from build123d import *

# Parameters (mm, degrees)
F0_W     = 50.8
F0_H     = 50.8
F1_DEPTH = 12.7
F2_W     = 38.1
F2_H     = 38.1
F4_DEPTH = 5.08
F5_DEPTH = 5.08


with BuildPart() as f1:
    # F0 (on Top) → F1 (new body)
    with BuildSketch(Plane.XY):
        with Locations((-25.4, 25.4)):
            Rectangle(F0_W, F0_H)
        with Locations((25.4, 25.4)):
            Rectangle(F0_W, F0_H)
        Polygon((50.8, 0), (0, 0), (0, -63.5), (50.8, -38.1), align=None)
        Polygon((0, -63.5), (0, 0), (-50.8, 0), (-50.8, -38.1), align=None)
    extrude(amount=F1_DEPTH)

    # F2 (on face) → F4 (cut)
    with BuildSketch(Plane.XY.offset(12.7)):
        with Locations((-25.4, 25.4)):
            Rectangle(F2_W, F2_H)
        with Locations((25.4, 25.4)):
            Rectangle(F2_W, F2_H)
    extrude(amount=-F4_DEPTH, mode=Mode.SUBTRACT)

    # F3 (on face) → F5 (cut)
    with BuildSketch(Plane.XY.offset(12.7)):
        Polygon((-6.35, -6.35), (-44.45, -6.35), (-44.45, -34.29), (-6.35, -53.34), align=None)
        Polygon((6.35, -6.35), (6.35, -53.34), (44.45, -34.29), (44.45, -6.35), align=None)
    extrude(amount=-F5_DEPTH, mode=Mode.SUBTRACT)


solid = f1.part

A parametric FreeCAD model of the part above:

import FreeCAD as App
import Part
import Sketcher
from FreeCAD import Vector
Q = App.Units.Quantity

doc = App.newDocument("Part")
body = doc.addObject("PartDesign::Body", "Body")

# Sketch on XY plane
sketch1 = body.newObject("Sketcher::SketchObject", "Sketch")
sketch1.AttachmentSupport = (doc.getObject("XY_Plane"), [""])
sketch1.MapMode = "FlatFace"
sketch1.addGeometry(Part.LineSegment(Vector(-50.8, 50.8, 0), Vector(-50.8, -38.1, 0)), False)
sketch1.addGeometry(Part.LineSegment(Vector(-50.8, -38.1, 0), Vector(0, -63.5, 0)), False)
sketch1.addGeometry(Part.LineSegment(Vector(0, -63.5, 0), Vector(50.8, -38.1, 0)), False)
sketch1.addGeometry(Part.LineSegment(Vector(50.8, -38.1, 0), Vector(50.8, 50.8, 0)), False)
sketch1.addGeometry(Part.LineSegment(Vector(50.8, 50.8, 0), Vector(-50.8, 50.8, 0)), False)
sketch1.addConstraint(Sketcher.Constraint("Coincident", 0, 2, 1, 1))
sketch1.addConstraint(Sketcher.Constraint("Coincident", 1, 2, 2, 1))
sketch1.addConstraint(Sketcher.Constraint("Coincident", 2, 2, 3, 1))
sketch1.addConstraint(Sketcher.Constraint("Coincident", 3, 2, 4, 1))
sketch1.addConstraint(Sketcher.Constraint("Coincident", 4, 2, 0, 1))
sketch1.addConstraint(Sketcher.Constraint("Vertical", 0))
sketch1.addConstraint(Sketcher.Constraint("Vertical", 3))
sketch1.addConstraint(Sketcher.Constraint("Horizontal", 4))
sketch1.addConstraint(Sketcher.Constraint("Symmetric", 0, 2, 2, 2, -2))
sketch1.addConstraint(Sketcher.Constraint("PointOnObject", 1, 2, -2))
sketch1.addConstraint(Sketcher.Constraint("DistanceX", 4, 2, 4, 1, Q("4 in")))
sketch1.addConstraint(Sketcher.Constraint("DistanceY", 0, 2, 0, 1, Q("3.5 in")))
sketch1.addConstraint(Sketcher.Constraint("DistanceY", -1, 1, 3, 2, Q("2 in")))
sketch1.addConstraint(Sketcher.Constraint("DistanceY", 1, 2, 0, 2, Q("1 in")))
pad1 = body.newObject("PartDesign::Pad", "Pad")
pad1.Profile = sketch1
pad1.Length = Q("0.5 in")

# Sketch on XY plane
sketch2 = body.newObject("Sketcher::SketchObject", "Sketch001")
sketch2.AttachmentSupport = (doc.getObject("XY_Plane"), [""])
sketch2.MapMode = "FlatFace"
sketch2.AttachmentOffset = App.Placement(Vector(0, 0, 0.5 * 25.4), App.Rotation())
sketch2.addGeometry(Part.LineSegment(Vector(-44.45, 44.45, 0), Vector(-44.45, 6.35, 0)), False)
sketch2.addGeometry(Part.LineSegment(Vector(-44.45, 6.35, 0), Vector(-6.35, 6.35, 0)), False)
sketch2.addGeometry(Part.LineSegment(Vector(-6.35, 6.35, 0), Vector(-6.35, 44.45, 0)), False)
sketch2.addGeometry(Part.LineSegment(Vector(-6.35, 44.45, 0), Vector(-44.45, 44.45, 0)), False)
sketch2.addGeometry(Part.LineSegment(Vector(6.35, 44.45, 0), Vector(6.35, 6.35, 0)), False)
sketch2.addGeometry(Part.LineSegment(Vector(6.35, 6.35, 0), Vector(44.45, 6.35, 0)), False)
sketch2.addGeometry(Part.LineSegment(Vector(44.45, 6.35, 0), Vector(44.45, 44.45, 0)), False)
sketch2.addGeometry(Part.LineSegment(Vector(44.45, 44.45, 0), Vector(6.35, 44.45, 0)), False)
sketch2.addConstraint(Sketcher.Constraint("Coincident", 0, 2, 1, 1))
sketch2.addConstraint(Sketcher.Constraint("Coincident", 1, 2, 2, 1))
sketch2.addConstraint(Sketcher.Constraint("Coincident", 2, 2, 3, 1))
sketch2.addConstraint(Sketcher.Constraint("Coincident", 3, 2, 0, 1))
sketch2.addConstraint(Sketcher.Constraint("Coincident", 4, 2, 5, 1))
sketch2.addConstraint(Sketcher.Constraint("Coincident", 5, 2, 6, 1))
sketch2.addConstraint(Sketcher.Constraint("Coincident", 6, 2, 7, 1))
sketch2.addConstraint(Sketcher.Constraint("Coincident", 7, 2, 4, 1))
sketch2.addConstraint(Sketcher.Constraint("Vertical", 0))
sketch2.addConstraint(Sketcher.Constraint("Horizontal", 1))
sketch2.addConstraint(Sketcher.Constraint("Vertical", 2))
sketch2.addConstraint(Sketcher.Constraint("Horizontal", 3))
sketch2.addConstraint(Sketcher.Constraint("Vertical", 4))
sketch2.addConstraint(Sketcher.Constraint("Horizontal", 5))
sketch2.addConstraint(Sketcher.Constraint("Vertical", 6))
sketch2.addConstraint(Sketcher.Constraint("Horizontal", 7))
sketch2.addConstraint(Sketcher.Constraint("Symmetric", 1, 2, 4, 2, -2))
sketch2.addConstraint(Sketcher.Constraint("Symmetric", 3, 2, 6, 2, -2))
sketch2.addConstraint(Sketcher.Constraint("Equal", 7, 0))
sketch2.addConstraint(Sketcher.Constraint("DistanceX", 1, 1, 1, 2, Q("1.5 in")))
sketch2.addConstraint(Sketcher.Constraint("DistanceX", 0, 2, 4, 2, Q("2 in")))
sketch2.addConstraint(Sketcher.Constraint("DistanceY", -1, 1, 0, 2, Q("0.25 in")))
pocket1 = body.newObject("PartDesign::Pocket", "Pocket")
pocket1.Profile = sketch2
pocket1.Length = Q("0.2 in")

# Sketch on XY plane
sketch3 = body.newObject("Sketcher::SketchObject", "Sketch002")
sketch3.AttachmentSupport = (doc.getObject("XY_Plane"), [""])
sketch3.MapMode = "FlatFace"
sketch3.AttachmentOffset = App.Placement(Vector(0, 0, 0.5 * 25.4), App.Rotation())
sketch3.addGeometry(Part.LineSegment(Vector(-6.35, -6.35, 0), Vector(-44.45, -6.35, 0)), False)
sketch3.addGeometry(Part.LineSegment(Vector(-44.45, -6.35, 0), Vector(-44.45, -34.29, 0)), False)
sketch3.addGeometry(Part.LineSegment(Vector(-44.45, -34.29, 0), Vector(-6.35, -53.34, 0)), False)
sketch3.addGeometry(Part.LineSegment(Vector(-6.35, -53.34, 0), Vector(-6.35, -6.35, 0)), False)
sketch3.addGeometry(Part.LineSegment(Vector(6.35, -6.35, 0), Vector(6.35, -53.34, 0)), False)
sketch3.addGeometry(Part.LineSegment(Vector(6.35, -53.34, 0), Vector(44.45, -34.29, 0)), False)
sketch3.addGeometry(Part.LineSegment(Vector(44.45, -34.29, 0), Vector(44.45, -6.35, 0)), False)
sketch3.addGeometry(Part.LineSegment(Vector(44.45, -6.35, 0), Vector(6.35, -6.35, 0)), False)
sketch3.addConstraint(Sketcher.Constraint("Coincident", 0, 2, 1, 1))
sketch3.addConstraint(Sketcher.Constraint("Coincident", 1, 2, 2, 1))
sketch3.addConstraint(Sketcher.Constraint("Coincident", 2, 2, 3, 1))
sketch3.addConstraint(Sketcher.Constraint("Coincident", 3, 2, 0, 1))
sketch3.addConstraint(Sketcher.Constraint("Coincident", 4, 2, 5, 1))
sketch3.addConstraint(Sketcher.Constraint("Coincident", 5, 2, 6, 1))
sketch3.addConstraint(Sketcher.Constraint("Coincident", 6, 2, 7, 1))
sketch3.addConstraint(Sketcher.Constraint("Coincident", 7, 2, 4, 1))
sketch3.addConstraint(Sketcher.Constraint("Horizontal", 0))
sketch3.addConstraint(Sketcher.Constraint("Vertical", 1))
sketch3.addConstraint(Sketcher.Constraint("Vertical", 3))
sketch3.addConstraint(Sketcher.Constraint("Vertical", 4))
sketch3.addConstraint(Sketcher.Constraint("Vertical", 6))
sketch3.addConstraint(Sketcher.Constraint("Horizontal", 7))
sketch3.addConstraint(Sketcher.Constraint("Symmetric", 2, 2, 4, 2, -2))
sketch3.addConstraint(Sketcher.Constraint("Symmetric", 1, 2, 5, 2, -2))
sketch3.addConstraint(Sketcher.Constraint("Horizontal", 3, 2, 6, 2))
sketch3.addConstraint(Sketcher.Constraint("DistanceX", 0, 2, 0, 1, Q("1.5 in")))
sketch3.addConstraint(Sketcher.Constraint("DistanceY", 1, 2, 1, 1, Q("1.1 in")))
sketch3.addConstraint(Sketcher.Constraint("DistanceX", 1, 2, 4, 2, Q("2 in")))
sketch3.addConstraint(Sketcher.Constraint("DistanceY", 3, 1, 3, 2, Q("1.85 in")))
sketch3.addConstraint(Sketcher.Constraint("DistanceY", 2, 2, -1, 1, Q("2.1 in")))
pocket2 = body.newObject("PartDesign::Pocket", "Pocket001")
pocket2.Profile = sketch3
pocket2.Length = Q("0.2 in")

doc.recompute()
